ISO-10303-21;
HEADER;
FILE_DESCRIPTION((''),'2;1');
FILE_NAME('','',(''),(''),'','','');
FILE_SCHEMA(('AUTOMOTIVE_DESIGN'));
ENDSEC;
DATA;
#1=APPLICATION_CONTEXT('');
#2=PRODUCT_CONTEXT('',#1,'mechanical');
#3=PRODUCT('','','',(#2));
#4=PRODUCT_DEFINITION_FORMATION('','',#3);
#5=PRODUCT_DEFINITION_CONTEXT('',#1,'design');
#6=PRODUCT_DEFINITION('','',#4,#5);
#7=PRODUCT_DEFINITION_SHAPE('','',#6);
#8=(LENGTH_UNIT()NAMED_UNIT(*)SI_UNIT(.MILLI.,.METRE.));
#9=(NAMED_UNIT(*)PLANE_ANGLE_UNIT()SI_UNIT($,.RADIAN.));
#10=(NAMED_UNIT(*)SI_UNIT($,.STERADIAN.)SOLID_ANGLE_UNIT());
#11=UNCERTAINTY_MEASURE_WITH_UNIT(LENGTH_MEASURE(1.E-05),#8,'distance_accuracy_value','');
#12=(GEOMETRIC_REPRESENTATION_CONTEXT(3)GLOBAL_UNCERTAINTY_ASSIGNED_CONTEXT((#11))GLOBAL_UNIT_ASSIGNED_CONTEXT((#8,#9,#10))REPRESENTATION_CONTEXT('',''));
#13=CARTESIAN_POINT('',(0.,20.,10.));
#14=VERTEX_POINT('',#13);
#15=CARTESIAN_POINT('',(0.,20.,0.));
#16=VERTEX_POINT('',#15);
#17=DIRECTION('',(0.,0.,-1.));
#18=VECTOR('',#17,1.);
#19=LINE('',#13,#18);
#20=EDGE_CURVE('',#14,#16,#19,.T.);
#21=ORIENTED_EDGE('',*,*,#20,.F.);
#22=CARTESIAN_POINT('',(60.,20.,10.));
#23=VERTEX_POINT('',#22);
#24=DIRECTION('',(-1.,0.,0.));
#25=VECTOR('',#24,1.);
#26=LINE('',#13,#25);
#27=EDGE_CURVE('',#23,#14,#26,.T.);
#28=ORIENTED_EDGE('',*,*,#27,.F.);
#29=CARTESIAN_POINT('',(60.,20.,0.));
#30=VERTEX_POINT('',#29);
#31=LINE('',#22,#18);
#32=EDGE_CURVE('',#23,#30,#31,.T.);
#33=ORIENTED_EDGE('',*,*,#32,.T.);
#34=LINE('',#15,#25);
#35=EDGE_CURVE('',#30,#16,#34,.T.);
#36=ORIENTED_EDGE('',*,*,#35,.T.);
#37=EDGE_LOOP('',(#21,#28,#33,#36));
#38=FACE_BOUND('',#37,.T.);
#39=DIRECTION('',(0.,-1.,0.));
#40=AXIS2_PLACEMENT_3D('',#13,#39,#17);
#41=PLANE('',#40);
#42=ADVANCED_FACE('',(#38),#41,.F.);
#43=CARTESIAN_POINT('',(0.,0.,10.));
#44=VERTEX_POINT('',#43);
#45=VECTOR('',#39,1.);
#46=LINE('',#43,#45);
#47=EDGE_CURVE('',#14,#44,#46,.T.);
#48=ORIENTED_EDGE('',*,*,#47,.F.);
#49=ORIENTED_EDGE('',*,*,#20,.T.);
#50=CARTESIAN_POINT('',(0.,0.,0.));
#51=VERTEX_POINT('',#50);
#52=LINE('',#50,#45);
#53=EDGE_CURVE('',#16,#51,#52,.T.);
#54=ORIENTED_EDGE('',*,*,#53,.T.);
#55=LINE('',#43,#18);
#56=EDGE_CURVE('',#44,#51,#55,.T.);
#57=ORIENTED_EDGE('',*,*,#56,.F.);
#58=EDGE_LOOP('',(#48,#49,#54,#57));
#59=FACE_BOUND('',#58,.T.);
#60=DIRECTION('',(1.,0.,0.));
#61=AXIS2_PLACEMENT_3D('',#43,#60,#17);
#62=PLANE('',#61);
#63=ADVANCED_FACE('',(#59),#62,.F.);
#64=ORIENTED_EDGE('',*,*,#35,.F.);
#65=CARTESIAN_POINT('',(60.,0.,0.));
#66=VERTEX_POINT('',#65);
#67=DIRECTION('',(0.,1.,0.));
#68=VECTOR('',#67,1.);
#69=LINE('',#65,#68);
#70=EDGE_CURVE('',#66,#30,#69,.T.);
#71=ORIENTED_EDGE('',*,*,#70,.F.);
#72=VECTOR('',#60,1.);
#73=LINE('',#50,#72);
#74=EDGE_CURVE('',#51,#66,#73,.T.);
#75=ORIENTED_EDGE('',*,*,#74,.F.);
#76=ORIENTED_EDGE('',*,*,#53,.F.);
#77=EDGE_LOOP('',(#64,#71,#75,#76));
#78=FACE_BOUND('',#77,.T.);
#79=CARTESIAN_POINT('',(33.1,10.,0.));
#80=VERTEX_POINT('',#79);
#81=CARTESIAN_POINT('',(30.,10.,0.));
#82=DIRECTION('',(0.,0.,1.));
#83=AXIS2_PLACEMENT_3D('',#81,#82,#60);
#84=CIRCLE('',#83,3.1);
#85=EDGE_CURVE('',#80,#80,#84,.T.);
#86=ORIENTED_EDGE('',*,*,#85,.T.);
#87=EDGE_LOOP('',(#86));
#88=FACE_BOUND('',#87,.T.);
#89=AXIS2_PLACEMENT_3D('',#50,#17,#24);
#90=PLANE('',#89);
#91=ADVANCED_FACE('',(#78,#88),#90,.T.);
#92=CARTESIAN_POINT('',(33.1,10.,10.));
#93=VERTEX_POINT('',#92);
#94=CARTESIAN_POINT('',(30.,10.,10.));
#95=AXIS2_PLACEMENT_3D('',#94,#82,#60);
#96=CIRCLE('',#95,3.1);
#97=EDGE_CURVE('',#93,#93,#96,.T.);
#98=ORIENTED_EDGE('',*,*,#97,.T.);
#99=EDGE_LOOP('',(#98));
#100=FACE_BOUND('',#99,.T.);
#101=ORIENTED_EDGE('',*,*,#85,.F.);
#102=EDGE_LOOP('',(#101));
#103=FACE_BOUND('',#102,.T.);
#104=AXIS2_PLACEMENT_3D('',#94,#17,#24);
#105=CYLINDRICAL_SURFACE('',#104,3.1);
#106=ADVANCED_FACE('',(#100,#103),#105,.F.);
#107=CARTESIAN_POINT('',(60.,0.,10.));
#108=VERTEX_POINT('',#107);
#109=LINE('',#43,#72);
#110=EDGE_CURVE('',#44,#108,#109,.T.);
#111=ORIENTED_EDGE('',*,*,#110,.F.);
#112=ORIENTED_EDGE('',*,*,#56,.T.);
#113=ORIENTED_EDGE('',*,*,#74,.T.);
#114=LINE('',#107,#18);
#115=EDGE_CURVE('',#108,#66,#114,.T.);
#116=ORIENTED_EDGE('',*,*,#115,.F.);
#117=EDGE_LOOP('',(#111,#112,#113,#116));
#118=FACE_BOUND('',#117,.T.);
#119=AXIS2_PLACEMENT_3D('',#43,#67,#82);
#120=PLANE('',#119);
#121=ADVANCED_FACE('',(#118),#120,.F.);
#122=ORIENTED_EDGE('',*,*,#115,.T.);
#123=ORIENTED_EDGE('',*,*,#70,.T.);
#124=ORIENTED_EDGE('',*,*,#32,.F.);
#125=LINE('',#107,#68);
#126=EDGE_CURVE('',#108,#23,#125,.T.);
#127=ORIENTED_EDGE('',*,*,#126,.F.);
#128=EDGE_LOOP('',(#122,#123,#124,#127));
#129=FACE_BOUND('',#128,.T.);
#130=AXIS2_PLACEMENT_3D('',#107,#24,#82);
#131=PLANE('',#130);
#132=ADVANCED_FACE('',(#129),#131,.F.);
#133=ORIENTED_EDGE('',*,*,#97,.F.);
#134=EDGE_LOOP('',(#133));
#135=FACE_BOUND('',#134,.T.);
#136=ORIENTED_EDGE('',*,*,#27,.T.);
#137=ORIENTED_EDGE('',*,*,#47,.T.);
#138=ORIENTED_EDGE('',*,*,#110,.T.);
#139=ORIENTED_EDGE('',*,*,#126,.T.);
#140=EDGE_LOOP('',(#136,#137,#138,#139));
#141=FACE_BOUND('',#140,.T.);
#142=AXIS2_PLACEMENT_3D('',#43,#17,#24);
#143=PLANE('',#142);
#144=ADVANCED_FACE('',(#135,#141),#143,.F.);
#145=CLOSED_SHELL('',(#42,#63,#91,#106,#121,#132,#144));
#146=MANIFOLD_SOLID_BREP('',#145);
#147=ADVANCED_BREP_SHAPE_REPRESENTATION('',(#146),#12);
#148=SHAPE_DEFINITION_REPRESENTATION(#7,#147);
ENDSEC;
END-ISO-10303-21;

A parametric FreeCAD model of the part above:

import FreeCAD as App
import Part
import Sketcher
Q = App.Units.Quantity

doc = App.newDocument("Part")
body = doc.addObject("PartDesign::Body", "Body")

# Sketch on XY plane
sketch1 = body.newObject("Sketcher::SketchObject", "Sketch")
sketch1.AttachmentSupport = (doc.getObject("XY_Plane"), [""])
sketch1.MapMode = "FlatFace"
sketch1.addGeometry([
    Part.LineSegment(App.Vector(0, 20, 0), App.Vector(0, 0, 0)),  # 0
    Part.LineSegment(App.Vector(0, 0, 0), App.Vector(60, 0, 0)),  # 1
    Part.LineSegment(App.Vector(60, 0, 0), App.Vector(60, 20, 0)),  # 2
    Part.LineSegment(App.Vector(60, 20, 0), App.Vector(0, 20, 0)),  # 3
    Part.Circle(App.Vector(30, 10, 0), App.Vector(0, 0, 1), 3.1),  # 4
], False)
sketch1.addConstraint([
    Sketcher.Constraint("Coincident", 0, 2, 1, 1),
    Sketcher.Constraint("Coincident", 1, 2, 2, 1),
    Sketcher.Constraint("Coincident", 2, 2, 3, 1),
    Sketcher.Constraint("Coincident", 3, 2, 0, 1),
    Sketcher.Constraint("Vertical", 0),
    Sketcher.Constraint("Horizontal", 1),
    Sketcher.Constraint("Vertical", 2),
    Sketcher.Constraint("Horizontal", 3),
    Sketcher.Constraint("Coincident", 0, 2, -1, 1),
    Sketcher.Constraint("Diameter", 4, Q("6.2 mm")),
    Sketcher.Constraint("DistanceX", 1, 1, 1, 2, Q("60 mm")),
    Sketcher.Constraint("DistanceY", 0, 2, 0, 1, Q("20 mm")),
    Sketcher.Constraint("DistanceX", -1, 1, 4, 3, Q("30 mm")),
    Sketcher.Constraint("DistanceY", -1, 1, 4, 3, Q("10 mm")),
])
pad1 = body.newObject("PartDesign::Pad", "Pad")
pad1.Profile = sketch1
pad1.Length = 10

doc.recompute()
